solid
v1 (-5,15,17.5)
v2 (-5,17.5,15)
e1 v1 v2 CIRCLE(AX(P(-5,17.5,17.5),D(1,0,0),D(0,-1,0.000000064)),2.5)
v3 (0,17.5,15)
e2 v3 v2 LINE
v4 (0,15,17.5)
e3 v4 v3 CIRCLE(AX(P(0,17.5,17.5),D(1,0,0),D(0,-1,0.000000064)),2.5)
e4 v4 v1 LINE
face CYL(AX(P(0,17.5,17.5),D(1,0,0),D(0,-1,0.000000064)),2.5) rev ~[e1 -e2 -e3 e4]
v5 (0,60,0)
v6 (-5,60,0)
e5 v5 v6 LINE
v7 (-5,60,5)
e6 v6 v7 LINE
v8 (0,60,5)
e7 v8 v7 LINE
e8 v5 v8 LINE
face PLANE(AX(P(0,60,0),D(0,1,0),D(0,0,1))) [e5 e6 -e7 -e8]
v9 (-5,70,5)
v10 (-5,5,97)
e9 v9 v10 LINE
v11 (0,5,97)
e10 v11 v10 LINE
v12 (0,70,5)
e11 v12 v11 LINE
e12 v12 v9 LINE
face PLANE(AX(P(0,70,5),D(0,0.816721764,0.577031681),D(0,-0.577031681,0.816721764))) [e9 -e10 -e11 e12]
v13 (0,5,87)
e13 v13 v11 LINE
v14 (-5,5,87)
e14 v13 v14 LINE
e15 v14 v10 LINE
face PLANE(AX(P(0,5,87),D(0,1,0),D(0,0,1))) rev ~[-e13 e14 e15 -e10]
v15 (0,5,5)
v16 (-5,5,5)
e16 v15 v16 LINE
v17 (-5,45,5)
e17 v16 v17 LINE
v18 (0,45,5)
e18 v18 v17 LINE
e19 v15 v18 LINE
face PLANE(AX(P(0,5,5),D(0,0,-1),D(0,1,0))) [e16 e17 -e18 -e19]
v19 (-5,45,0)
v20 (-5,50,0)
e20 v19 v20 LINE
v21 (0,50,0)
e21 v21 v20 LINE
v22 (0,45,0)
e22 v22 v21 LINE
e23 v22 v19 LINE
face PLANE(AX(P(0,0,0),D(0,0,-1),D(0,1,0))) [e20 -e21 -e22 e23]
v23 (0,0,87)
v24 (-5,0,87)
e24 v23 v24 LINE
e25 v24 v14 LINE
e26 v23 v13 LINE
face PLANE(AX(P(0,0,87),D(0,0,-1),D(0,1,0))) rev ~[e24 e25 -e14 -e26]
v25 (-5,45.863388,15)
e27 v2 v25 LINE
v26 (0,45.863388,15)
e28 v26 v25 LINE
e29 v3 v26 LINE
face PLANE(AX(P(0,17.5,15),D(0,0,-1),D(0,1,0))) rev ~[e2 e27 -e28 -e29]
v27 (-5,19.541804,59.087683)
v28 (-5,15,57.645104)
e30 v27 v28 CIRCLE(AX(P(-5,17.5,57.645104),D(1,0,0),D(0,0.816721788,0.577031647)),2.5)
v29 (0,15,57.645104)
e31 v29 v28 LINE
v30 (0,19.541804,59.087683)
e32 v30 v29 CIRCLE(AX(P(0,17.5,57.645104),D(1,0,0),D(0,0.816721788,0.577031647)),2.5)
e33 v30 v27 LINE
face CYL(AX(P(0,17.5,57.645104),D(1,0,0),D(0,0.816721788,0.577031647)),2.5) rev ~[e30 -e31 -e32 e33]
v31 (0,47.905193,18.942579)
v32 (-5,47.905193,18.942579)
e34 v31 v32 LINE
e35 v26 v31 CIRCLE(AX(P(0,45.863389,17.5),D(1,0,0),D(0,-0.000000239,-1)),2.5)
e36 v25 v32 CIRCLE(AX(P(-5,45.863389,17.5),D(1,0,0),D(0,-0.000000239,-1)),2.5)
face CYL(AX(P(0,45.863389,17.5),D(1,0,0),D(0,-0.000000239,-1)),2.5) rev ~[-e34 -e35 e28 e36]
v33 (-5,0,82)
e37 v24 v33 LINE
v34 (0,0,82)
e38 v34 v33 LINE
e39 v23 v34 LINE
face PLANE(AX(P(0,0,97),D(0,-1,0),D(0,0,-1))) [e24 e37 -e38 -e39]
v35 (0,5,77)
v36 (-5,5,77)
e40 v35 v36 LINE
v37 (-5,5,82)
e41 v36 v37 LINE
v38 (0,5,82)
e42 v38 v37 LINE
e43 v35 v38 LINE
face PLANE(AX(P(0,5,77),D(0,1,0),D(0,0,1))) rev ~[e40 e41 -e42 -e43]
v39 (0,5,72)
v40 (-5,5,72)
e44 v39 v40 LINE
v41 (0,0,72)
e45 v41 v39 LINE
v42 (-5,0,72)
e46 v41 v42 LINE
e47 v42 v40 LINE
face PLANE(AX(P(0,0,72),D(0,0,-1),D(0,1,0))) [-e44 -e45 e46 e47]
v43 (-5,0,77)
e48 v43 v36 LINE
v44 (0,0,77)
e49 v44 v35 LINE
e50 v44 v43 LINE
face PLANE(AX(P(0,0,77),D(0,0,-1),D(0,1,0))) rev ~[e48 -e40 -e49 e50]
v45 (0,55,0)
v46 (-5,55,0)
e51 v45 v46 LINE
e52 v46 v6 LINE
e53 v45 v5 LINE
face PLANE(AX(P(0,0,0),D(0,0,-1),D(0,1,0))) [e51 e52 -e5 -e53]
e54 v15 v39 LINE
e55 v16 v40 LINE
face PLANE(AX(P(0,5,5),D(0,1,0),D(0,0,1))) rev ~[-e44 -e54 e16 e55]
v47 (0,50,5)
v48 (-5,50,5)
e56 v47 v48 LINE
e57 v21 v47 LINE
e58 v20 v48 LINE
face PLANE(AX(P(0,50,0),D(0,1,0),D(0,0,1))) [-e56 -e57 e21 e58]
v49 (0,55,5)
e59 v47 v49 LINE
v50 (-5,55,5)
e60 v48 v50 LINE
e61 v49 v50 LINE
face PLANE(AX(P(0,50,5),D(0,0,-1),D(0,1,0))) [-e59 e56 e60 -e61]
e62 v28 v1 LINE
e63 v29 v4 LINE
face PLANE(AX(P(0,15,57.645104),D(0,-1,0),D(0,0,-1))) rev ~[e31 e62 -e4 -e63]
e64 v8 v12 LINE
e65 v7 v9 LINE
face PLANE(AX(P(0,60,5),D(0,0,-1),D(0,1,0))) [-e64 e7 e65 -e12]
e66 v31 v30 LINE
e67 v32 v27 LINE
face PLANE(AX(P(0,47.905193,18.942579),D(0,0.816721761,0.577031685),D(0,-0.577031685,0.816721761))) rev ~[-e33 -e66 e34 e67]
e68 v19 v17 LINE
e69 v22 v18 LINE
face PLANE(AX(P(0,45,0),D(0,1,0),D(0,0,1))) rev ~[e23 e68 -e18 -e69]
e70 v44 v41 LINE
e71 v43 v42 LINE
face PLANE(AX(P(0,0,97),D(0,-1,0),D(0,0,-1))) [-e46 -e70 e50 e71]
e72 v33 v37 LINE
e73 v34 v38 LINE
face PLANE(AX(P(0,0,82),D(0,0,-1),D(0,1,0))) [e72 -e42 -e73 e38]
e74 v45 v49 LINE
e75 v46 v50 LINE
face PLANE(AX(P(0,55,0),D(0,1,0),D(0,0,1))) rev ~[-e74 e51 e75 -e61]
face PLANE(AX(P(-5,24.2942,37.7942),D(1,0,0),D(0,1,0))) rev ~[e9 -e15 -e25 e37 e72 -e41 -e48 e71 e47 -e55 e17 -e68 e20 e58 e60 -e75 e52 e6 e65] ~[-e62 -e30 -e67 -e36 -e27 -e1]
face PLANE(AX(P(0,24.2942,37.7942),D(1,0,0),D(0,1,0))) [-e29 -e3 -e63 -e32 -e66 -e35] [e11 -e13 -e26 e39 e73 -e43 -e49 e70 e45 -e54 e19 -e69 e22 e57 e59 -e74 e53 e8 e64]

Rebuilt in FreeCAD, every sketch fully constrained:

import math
import FreeCAD as App
import Part
import Sketcher
Q = App.Units.Quantity

doc = App.newDocument("Part")
body = doc.addObject("PartDesign::Body", "Body")

sketch1 = body.newObject("Sketcher::SketchObject", "Sketch")
sketch1.AttachmentSupport = (doc.getObject("YZ_Plane"), [""])
sketch1.MapMode = "FlatFace"
sketch1.addGeometry(Part.LineSegment(App.Vector(5, 97, 0), App.Vector(0, 97, 0)), False)
sketch1.addGeometry(Part.LineSegment(App.Vector(0, 97, 0), App.Vector(0, 0, 0)), False)
sketch1.addGeometry(Part.LineSegment(App.Vector(0, 0, 0), App.Vector(70, 0, 0)), False)
sketch1.addGeometry(Part.LineSegment(App.Vector(70, 0, 0), App.Vector(70, 5, 0)), False)
sketch1.addGeometry(Part.LineSegment(App.Vector(70, 5, 0), App.Vector(5, 97, 0)), False)
sketch1.addConstraint(Sketcher.Constraint("Coincident", 0, 2, 1, 1))
sketch1.addConstraint(Sketcher.Constraint("Coincident", 1, 2, 2, 1))
sketch1.addConstraint(Sketcher.Constraint("Coincident", 2, 2, 3, 1))
sketch1.addConstraint(Sketcher.Constraint("Coincident", 3, 2, 4, 1))
sketch1.addConstraint(Sketcher.Constraint("Coincident", 4, 2, 0, 1))
sketch1.addConstraint(Sketcher.Constraint("Horizontal", 0))
sketch1.addConstraint(Sketcher.Constraint("Vertical", 1))
sketch1.addConstraint(Sketcher.Constraint("Horizontal", 2))
sketch1.addConstraint(Sketcher.Constraint("Vertical", 3))
sketch1.addConstraint(Sketcher.Constraint("Coincident", 1, 2, -1, 1))
sketch1.addConstraint(Sketcher.Constraint("Equal", 0, 3))
sketch1.addConstraint(Sketcher.Constraint("DistanceX", 0, 2, 0, 1, Q("5 mm")))
sketch1.addConstraint(Sketcher.Constraint("DistanceX", 2, 1, 2, 2, Q("70 mm")))
sketch1.addConstraint(Sketcher.Constraint("DistanceY", 1, 2, 1, 1, Q("97 mm")))
pad1 = body.newObject("PartDesign::Pad", "Pad")
pad1.Profile = sketch1
pad1.Length = 5
pad1.Reversed = True

sketch2 = body.newObject("Sketcher::SketchObject", "Sketch001")
sketch2.AttachmentSupport = (doc.getObject("YZ_Plane"), [""])
sketch2.MapMode = "FlatFace"
sketch2.addGeometry(Part.ArcOfCircle(Part.Circle(App.Vector(17.5, 57.6, 0), App.Vector(0, 0, 1), 2.5), math.radians(35), math.radians(180)), False)
sketch2.addGeometry(Part.LineSegment(App.Vector(15, 57.6, 0), App.Vector(15, 17.5, 0)), False)
sketch2.addGeometry(Part.ArcOfCircle(Part.Circle(App.Vector(17.5, 17.5, 0), App.Vector(0, 0, 1), 2.5), math.radians(180), math.radians(270)), False)
sketch2.addGeometry(Part.LineSegment(App.Vector(17.5, 15, 0), App.Vector(45.9, 15, 0)), False)
sketch2.addGeometry(Part.ArcOfCircle(Part.Circle(App.Vector(45.9, 17.5, 0), App.Vector(0, 0, 1), 2.5), math.radians(-90), math.radians(35)), False)
sketch2.addGeometry(Part.LineSegment(App.Vector(47.9, 18.9, 0), App.Vector(19.5, 59.1, 0)), False)
sketch2.addConstraint(Sketcher.Constraint("Tangent", 0, 2, 1, 1))
sketch2.addConstraint(Sketcher.Constraint("Tangent", 1, 2, 2, 1))
sketch2.addConstraint(Sketcher.Constraint("Tangent", 2, 2, 3, 1))
sketch2.addConstraint(Sketcher.Constraint("Tangent", 3, 2, 4, 1))
sketch2.addConstraint(Sketcher.Constraint("Tangent", 4, 2, 5, 1))
sketch2.addConstraint(Sketcher.Constraint("Tangent", 5, 2, 0, 1))
sketch2.addConstraint(Sketcher.Constraint("Vertical", 1))
sketch2.addConstraint(Sketcher.Constraint("Horizontal", 3))
sketch2.addConstraint(Sketcher.Constraint("Equal", 0, 2))
sketch2.addConstraint(Sketcher.Constraint("Equal", 2, 4))
sketch2.addConstraint(Sketcher.Constraint("Radius", 0, Q("2.5 mm")))
sketch2.addConstraint(Sketcher.Constraint("DistanceX", -1, 1, 0, 2, Q("15 mm")))
sketch2.addConstraint(Sketcher.Constraint("DistanceY", -1, 1, 2, 2, Q("15 mm")))
sketch2.addConstraint(Sketcher.Constraint("DistanceX", 3, 1, 3, 2, Q("28.363388 mm")))
sketch2.addConstraint(Sketcher.Constraint("DistanceY", 1, 2, 1, 1, Q("40.145104 mm")))
pocket1 = body.newObject("PartDesign::Pocket", "Pocket")
pocket1.Profile = sketch2
pocket1.Type = "ThroughAll"

sketch3 = body.newObject("Sketcher::SketchObject", "Sketch002")
sketch3.AttachmentSupport = (doc.getObject("YZ_Plane"), [""])
sketch3.MapMode = "FlatFace"
sketch3.addGeometry(Part.LineSegment(App.Vector(0, 97, 0), App.Vector(0, 87, 0)), False)
sketch3.addGeometry(Part.LineSegment(App.Vector(0, 87, 0), App.Vector(5, 87, 0)), False)
sketch3.addGeometry(Part.LineSegment(App.Vector(5, 87, 0), App.Vector(5, 97, 0)), False)
sketch3.addGeometry(Part.LineSegment(App.Vector(5, 97, 0), App.Vector(0, 97, 0)), False)
sketch3.addGeometry(Part.LineSegment(App.Vector(0, 82, 0), App.Vector(0, 77, 0)), False)
sketch3.addGeometry(Part.LineSegment(App.Vector(0, 77, 0), App.Vector(5, 77, 0)), False)
sketch3.addGeometry(Part.LineSegment(App.Vector(5, 77, 0), App.Vector(5, 82, 0)), False)
sketch3.addGeometry(Part.LineSegment(App.Vector(5, 82, 0), App.Vector(0, 82, 0)), False)
sketch3.addGeometry(Part.LineSegment(App.Vector(0, 72, 0), App.Vector(0, 0, 0)), False)
sketch3.addGeometry(Part.LineSegment(App.Vector(0, 0, 0), App.Vector(45, 0, 0)), False)
sketch3.addGeometry(Part.LineSegment(App.Vector(45, 0, 0), App.Vector(45, 5, 0)), False)
sketch3.addGeometry(Part.LineSegment(App.Vector(45, 5, 0), App.Vector(5, 5, 0)), False)
sketch3.addGeometry(Part.LineSegment(App.Vector(5, 5, 0), App.Vector(5, 72, 0)), False)
sketch3.addGeometry(Part.LineSegment(App.Vector(5, 72, 0), App.Vector(0, 72, 0)), False)
sketch3.addGeometry(Part.LineSegment(App.Vector(50, 5, 0), App.Vector(50, 0, 0)), False)
sketch3.addGeometry(Part.LineSegment(App.Vector(50, 0, 0), App.Vector(55, 0, 0)), False)
sketch3.addGeometry(Part.LineSegment(App.Vector(55, 0, 0), App.Vector(55, 5, 0)), False)
sketch3.addGeometry(Part.LineSegment(App.Vector(55, 5, 0), App.Vector(50, 5, 0)), False)
sketch3.addGeometry(Part.LineSegment(App.Vector(60, 5, 0), App.Vector(60, 0, 0)), False)
sketch3.addGeometry(Part.LineSegment(App.Vector(60, 0, 0), App.Vector(70, 0, 0)), False)
sketch3.addGeometry(Part.LineSegment(App.Vector(70, 0, 0), App.Vector(70, 5, 0)), False)
sketch3.addGeometry(Part.LineSegment(App.Vector(70, 5, 0), App.Vector(60, 5, 0)), False)
sketch3.addConstraint(Sketcher.Constraint("Coincident", 0, 2, 1, 1))
sketch3.addConstraint(Sketcher.Constraint("Coincident", 1, 2, 2, 1))
sketch3.addConstraint(Sketcher.Constraint("Coincident", 2, 2, 3, 1))
sketch3.addConstraint(Sketcher.Constraint("Coincident", 3, 2, 0, 1))
sketch3.addConstraint(Sketcher.Constraint("Coincident", 4, 2, 5, 1))
sketch3.addConstraint(Sketcher.Constraint("Coincident", 5, 2, 6, 1))
sketch3.addConstraint(Sketcher.Constraint("Coincident", 6, 2, 7, 1))
sketch3.addConstraint(Sketcher.Constraint("Coincident", 7, 2, 4, 1))
sketch3.addConstraint(Sketcher.Constraint("Coincident", 8, 2, 9, 1))
sketch3.addConstraint(Sketcher.Constraint("Coincident", 9, 2, 10, 1))
sketch3.addConstraint(Sketcher.Constraint("Coincident", 10, 2, 11, 1))
sketch3.addConstraint(Sketcher.Constraint("Coincident", 11, 2, 12, 1))
sketch3.addConstraint(Sketcher.Constraint("Coincident", 12, 2, 13, 1))
sketch3.addConstraint(Sketcher.Constraint("Coincident", 13, 2, 8, 1))
sketch3.addConstraint(Sketcher.Constraint("Coincident", 14, 2, 15, 1))
sketch3.addConstraint(Sketcher.Constraint("Coincident", 15, 2, 16, 1))
sketch3.addConstraint(Sketcher.Constraint("Coincident", 16, 2, 17, 1))
sketch3.addConstraint(Sketcher.Constraint("Coincident", 17, 2, 14, 1))
sketch3.addConstraint(Sketcher.Constraint("Coincident", 18, 2, 19, 1))
sketch3.addConstraint(Sketcher.Constraint("Coincident", 19, 2, 20, 1))
sketch3.addConstraint(Sketcher.Constraint("Coincident", 20, 2, 21, 1))
sketch3.addConstraint(Sketcher.Constraint("Coincident", 21, 2, 18, 1))
sketch3.addConstraint(Sketcher.Constraint("Vertical", 0))
sketch3.addConstraint(Sketcher.Constraint("Horizontal", 1))
sketch3.addConstraint(Sketcher.Constraint("Vertical", 2))
sketch3.addConstraint(Sketcher.Constraint("Horizontal", 3))
sketch3.addConstraint(Sketcher.Constraint("Vertical", 4))
sketch3.addConstraint(Sketcher.Constraint("Horizontal", 5))
sketch3.addConstraint(Sketcher.Constraint("Vertical", 6))
sketch3.addConstraint(Sketcher.Constraint("Horizontal", 7))
sketch3.addConstraint(Sketcher.Constraint("Vertical", 8))
sketch3.addConstraint(Sketcher.Constraint("Horizontal", 9))
sketch3.addConstraint(Sketcher.Constraint("Vertical", 10))
sketch3.addConstraint(Sketcher.Constraint("Horizontal", 11))
sketch3.addConstraint(Sketcher.Constraint("Vertical", 12))
sketch3.addConstraint(Sketcher.Constraint("Horizontal", 13))
sketch3.addConstraint(Sketcher.Constraint("Vertical", 14))
sketch3.addConstraint(Sketcher.Constraint("Horizontal", 15))
sketch3.addConstraint(Sketcher.Constraint("Vertical", 16))
sketch3.addConstraint(Sketcher.Constraint("Horizontal", 17))
sketch3.addConstraint(Sketcher.Constraint("Vertical", 18))
sketch3.addConstraint(Sketcher.Constraint("Horizontal", 19))
sketch3.addConstraint(Sketcher.Constraint("Vertical", 20))
sketch3.addConstraint(Sketcher.Constraint("Horizontal", 21))
sketch3.addConstraint(Sketcher.Constraint("Coincident", 8, 2, -1, 1))
sketch3.addConstraint(Sketcher.Constraint("PointOnObject", 0, 2, -2))
sketch3.addConstraint(Sketcher.Constraint("PointOnObject", 4, 2, -2))
sketch3.addConstraint(Sketcher.Constraint("PointOnObject", 14, 2, -1))
sketch3.addConstraint(Sketcher.Constraint("PointOnObject", 18, 2, -1))
sketch3.addConstraint(Sketcher.Constraint("Horizontal", 11, 2, 16, 2))
sketch3.addConstraint(Sketcher.Constraint("Horizontal", 17, 2, 20, 2))
sketch3.addConstraint(Sketcher.Constraint("Vertical", 2, 2, 5, 2))
sketch3.addConstraint(Sketcher.Constraint("Vertical", 6, 2, 11, 2))
sketch3.addConstraint(Sketcher.Constraint("Equal", 13, 15))
sketch3.addConstraint(Sketcher.Constraint("Equal", 21, 0))
sketch3.addConstraint(Sketcher.Constraint("Equal", 17, 4))
sketch3.addConstraint(Sketcher.Constraint("Equal", 6, 10))
sketch3.addConstraint(Sketcher.Constraint("DistanceX", 1, 1, 1, 2, Q("5 mm")))
sketch3.addConstraint(Sketcher.Constraint("DistanceX", 9, 1, 9, 2, Q("45 mm")))
sketch3.addConstraint(Sketcher.Constraint("DistanceX", 19, 1, 19, 2, Q("10 mm")))
sketch3.addConstraint(Sketcher.Constraint("DistanceY", 8, 2, 8, 1, Q("72 mm")))
sketch3.addConstraint(Sketcher.Constraint("DistanceY", -1, 1, 0, 2, Q("87 mm")))
sketch3.addConstraint(Sketcher.Constraint("DistanceY", -1, 1, 4, 2, Q("77 mm")))
sketch3.addConstraint(Sketcher.Constraint("DistanceX", -1, 1, 14, 2, Q("50 mm")))
sketch3.addConstraint(Sketcher.Constraint("DistanceX", -1, 1, 18, 2, Q("60 mm")))
pocket2 = body.newObject("PartDesign::Pocket", "Pocket001")
pocket2.Profile = sketch3
pocket2.Type = "ThroughAll"

doc.recompute()
